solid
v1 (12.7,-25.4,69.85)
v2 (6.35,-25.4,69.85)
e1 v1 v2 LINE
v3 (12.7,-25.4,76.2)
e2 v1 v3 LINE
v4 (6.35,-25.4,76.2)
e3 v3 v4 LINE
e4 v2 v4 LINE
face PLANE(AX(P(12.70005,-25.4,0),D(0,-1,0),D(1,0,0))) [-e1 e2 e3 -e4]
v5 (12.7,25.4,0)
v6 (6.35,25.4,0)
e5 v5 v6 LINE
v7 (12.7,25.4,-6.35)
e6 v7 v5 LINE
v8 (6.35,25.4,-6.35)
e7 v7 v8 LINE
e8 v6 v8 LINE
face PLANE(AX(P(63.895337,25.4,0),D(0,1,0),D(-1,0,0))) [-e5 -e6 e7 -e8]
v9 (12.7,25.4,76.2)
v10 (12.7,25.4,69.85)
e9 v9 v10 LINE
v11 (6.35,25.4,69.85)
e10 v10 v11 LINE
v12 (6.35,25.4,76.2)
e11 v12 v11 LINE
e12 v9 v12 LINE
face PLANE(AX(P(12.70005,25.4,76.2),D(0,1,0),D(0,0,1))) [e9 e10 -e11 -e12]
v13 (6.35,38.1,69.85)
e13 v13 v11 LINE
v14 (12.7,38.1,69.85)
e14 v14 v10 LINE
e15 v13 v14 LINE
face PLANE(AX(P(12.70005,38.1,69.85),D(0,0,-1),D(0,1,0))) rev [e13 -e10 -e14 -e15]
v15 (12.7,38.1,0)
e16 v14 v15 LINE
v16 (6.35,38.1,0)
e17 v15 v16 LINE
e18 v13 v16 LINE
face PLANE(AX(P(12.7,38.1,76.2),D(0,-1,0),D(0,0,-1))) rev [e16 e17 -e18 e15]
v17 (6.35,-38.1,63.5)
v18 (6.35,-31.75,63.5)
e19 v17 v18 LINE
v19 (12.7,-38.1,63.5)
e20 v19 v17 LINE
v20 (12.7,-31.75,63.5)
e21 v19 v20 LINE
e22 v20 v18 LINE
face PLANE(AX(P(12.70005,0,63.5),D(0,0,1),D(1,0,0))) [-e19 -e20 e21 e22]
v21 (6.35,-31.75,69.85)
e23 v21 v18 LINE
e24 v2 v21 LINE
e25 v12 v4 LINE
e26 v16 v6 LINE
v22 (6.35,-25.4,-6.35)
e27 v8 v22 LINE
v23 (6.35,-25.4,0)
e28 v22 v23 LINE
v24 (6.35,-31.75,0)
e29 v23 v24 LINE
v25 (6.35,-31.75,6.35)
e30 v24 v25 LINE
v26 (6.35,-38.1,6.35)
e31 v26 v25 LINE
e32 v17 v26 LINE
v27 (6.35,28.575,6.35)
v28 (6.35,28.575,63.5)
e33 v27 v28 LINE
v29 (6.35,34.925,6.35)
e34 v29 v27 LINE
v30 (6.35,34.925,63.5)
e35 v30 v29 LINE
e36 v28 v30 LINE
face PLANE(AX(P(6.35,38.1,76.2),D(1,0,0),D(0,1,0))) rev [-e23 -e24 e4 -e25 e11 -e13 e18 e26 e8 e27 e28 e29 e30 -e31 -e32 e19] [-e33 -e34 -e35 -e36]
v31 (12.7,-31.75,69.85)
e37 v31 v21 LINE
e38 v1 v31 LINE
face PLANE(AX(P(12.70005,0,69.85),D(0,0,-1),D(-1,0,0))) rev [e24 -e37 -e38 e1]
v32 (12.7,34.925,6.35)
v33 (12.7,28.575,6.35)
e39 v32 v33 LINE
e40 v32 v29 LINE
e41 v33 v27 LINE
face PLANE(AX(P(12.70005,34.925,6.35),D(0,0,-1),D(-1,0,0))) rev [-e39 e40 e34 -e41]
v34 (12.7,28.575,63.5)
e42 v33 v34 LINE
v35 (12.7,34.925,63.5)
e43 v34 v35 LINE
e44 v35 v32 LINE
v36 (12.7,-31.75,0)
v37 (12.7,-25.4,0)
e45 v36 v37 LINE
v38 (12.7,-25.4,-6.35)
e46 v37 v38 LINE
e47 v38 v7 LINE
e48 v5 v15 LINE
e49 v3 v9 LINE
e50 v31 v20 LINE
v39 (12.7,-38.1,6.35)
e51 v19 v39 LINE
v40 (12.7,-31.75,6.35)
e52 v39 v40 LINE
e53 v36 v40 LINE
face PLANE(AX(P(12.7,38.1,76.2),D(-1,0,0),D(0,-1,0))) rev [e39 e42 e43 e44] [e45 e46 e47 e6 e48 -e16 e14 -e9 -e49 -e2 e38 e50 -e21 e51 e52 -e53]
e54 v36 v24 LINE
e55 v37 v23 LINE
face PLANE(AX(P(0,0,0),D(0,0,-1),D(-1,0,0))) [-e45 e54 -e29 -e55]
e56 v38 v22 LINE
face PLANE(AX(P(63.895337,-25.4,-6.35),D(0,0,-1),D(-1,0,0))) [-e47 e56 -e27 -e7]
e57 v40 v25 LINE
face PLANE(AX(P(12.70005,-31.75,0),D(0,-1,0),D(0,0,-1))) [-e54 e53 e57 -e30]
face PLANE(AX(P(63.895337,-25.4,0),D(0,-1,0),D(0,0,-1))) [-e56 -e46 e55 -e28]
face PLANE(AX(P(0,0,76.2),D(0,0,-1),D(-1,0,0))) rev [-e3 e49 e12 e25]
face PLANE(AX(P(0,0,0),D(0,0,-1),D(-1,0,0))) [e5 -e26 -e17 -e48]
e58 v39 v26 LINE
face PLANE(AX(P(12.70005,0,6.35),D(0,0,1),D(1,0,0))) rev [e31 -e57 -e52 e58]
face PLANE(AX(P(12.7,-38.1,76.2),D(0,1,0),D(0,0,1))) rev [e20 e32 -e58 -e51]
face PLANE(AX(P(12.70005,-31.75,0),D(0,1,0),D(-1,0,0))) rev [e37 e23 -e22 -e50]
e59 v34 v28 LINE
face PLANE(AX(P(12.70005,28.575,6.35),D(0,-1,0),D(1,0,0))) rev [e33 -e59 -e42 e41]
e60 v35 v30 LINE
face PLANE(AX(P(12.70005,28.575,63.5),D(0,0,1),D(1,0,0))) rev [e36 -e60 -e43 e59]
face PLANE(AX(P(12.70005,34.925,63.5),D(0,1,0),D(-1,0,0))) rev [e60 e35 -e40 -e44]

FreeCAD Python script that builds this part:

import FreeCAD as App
import Part
import Sketcher
from FreeCAD import Vector
Q = App.Units.Quantity

doc = App.newDocument("Part")
params = doc.addObject("Spreadsheet::Sheet", "Params")
for row, (alias, value) in enumerate([
    ("sketch1_height", "3 in"),
    ("sketch1_width", "0.25 in"),
    ("pad1_length", "3 in"),
    ("sketch2_width", "2 in"),
    ("sketch2_height", "0.25 in"),
    ("pad2_length", "0.25 in"),
    ("sketch3_width", "0.5 in"),
    ("sketch4_width", "0.25 in"),
    ("sketch4_height", "2.25 in"),
], start=1):
    params.set(f"A{row}", alias)
    params.set(f"B{row}", "=" + value)
    params.setAlias(f"B{row}", alias)

body = doc.addObject("PartDesign::Body", "Body")

# Sketch on XY plane
sketch1 = body.newObject("Sketcher::SketchObject", "Sketch")
sketch1.AttachmentSupport = (doc.getObject("XY_Plane"), [""])
sketch1.MapMode = "FlatFace"
sketch1.addGeometry([
    Part.LineSegment(Vector(6.35, 38.1, 0), Vector(6.35, -38.1, 0)),
    Part.LineSegment(Vector(6.35, -38.1, 0), Vector(12.7, -38.1, 0)),
    Part.LineSegment(Vector(12.7, -38.1, 0), Vector(12.7, 38.1, 0)),
    Part.LineSegment(Vector(12.7, 38.1, 0), Vector(6.35, 38.1, 0)),
], False)
sketch1.addConstraint([
    Sketcher.Constraint("Coincident", 0, 2, 1, 1),
    Sketcher.Constraint("Coincident", 1, 2, 2, 1),
    Sketcher.Constraint("Coincident", 2, 2, 3, 1),
    Sketcher.Constraint("Coincident", 3, 2, 0, 1),
    Sketcher.Constraint("Vertical", 0),
    Sketcher.Constraint("Horizontal", 1),
    Sketcher.Constraint("Vertical", 2),
    Sketcher.Constraint("Horizontal", 3),
    Sketcher.Constraint("DistanceY", 0, 2, 0, 1, Q("3 in")),
    Sketcher.Constraint("DistanceX", 1, 1, 1, 2, Q("0.25 in")),
    Sketcher.Constraint("DistanceY", 0, 2, -1, 1, Q("1.5 in")),
    Sketcher.Constraint("DistanceX", -1, 1, 1, 2, Q("0.5 in")),
])
sketch1.setExpression("Constraints[8]", "Params.sketch1_height")
sketch1.setExpression("Constraints[9]", "Params.sketch1_width")
pad1 = body.newObject("PartDesign::Pad", "Pad")
pad1.Profile = sketch1
pad1.setExpression("Length", "Params.pad1_length")

# Sketch on YZ plane
sketch2 = body.newObject("Sketcher::SketchObject", "Sketch001")
sketch2.AttachmentSupport = (doc.getObject("YZ_Plane"), [""])
sketch2.MapMode = "FlatFace"
sketch2.AttachmentOffset = App.Placement(Vector(0, 0, 0.25 * 25.4), App.Rotation())
sketch2.addGeometry([
    Part.LineSegment(Vector(25.4, -6.35, 0), Vector(-25.4, -6.35, 0)),
    Part.LineSegment(Vector(-25.4, -6.35, 0), Vector(-25.4, 0, 0)),
    Part.LineSegment(Vector(-25.4, 0, 0), Vector(25.4, 0, 0)),
    Part.LineSegment(Vector(25.4, 0, 0), Vector(25.4, -6.35, 0)),
], False)
sketch2.addConstraint([
    Sketcher.Constraint("Coincident", 0, 2, 1, 1),
    Sketcher.Constraint("Coincident", 1, 2, 2, 1),
    Sketcher.Constraint("Coincident", 2, 2, 3, 1),
    Sketcher.Constraint("Coincident", 3, 2, 0, 1),
    Sketcher.Constraint("Horizontal", 0),
    Sketcher.Constraint("Vertical", 1),
    Sketcher.Constraint("Horizontal", 2),
    Sketcher.Constraint("Vertical", 3),
    Sketcher.Constraint("Symmetric", 1, 2, 2, 2, -1, 1),
    Sketcher.Constraint("DistanceX", 0, 2, 0, 1, Q("2 in")),
    Sketcher.Constraint("DistanceY", 1, 1, 1, 2, Q("0.25 in")),
])
sketch2.setExpression("Constraints[9]", "Params.sketch2_width")
sketch2.setExpression("Constraints[10]", "Params.sketch2_height")
pad2 = body.newObject("PartDesign::Pad", "Pad001")
pad2.Profile = sketch2
pad2.setExpression("Length", "Params.pad2_length")

# Sketch on YZ plane
sketch3 = body.newObject("Sketcher::SketchObject", "Sketch002")
sketch3.AttachmentSupport = (doc.getObject("YZ_Plane"), [""])
sketch3.MapMode = "FlatFace"
sketch3.AttachmentOffset = App.Placement(Vector(0, 0, 0.25 * 25.4), App.Rotation())
sketch3.addGeometry([
    Part.LineSegment(Vector(-38.1, 76.2, 0), Vector(-25.4, 76.2, 0)),  # 0
    Part.LineSegment(Vector(-25.4, 76.2, 0), Vector(-25.4, 69.85, 0)),  # 1
    Part.LineSegment(Vector(-25.4, 69.85, 0), Vector(-31.75, 69.85, 0)),  # 2
    Part.LineSegment(Vector(-31.75, 69.85, 0), Vector(-31.75, 63.5, 0)),  # 3
    Part.LineSegment(Vector(-31.75, 63.5, 0), Vector(-38.1, 63.5, 0)),  # 4
    Part.LineSegment(Vector(-38.1, 63.5, 0), Vector(-38.1, 76.2, 0)),  # 5
    Part.LineSegment(Vector(-31.75, 0, 0), Vector(-38.1, 0, 0)),  # 6
    Part.LineSegment(Vector(-38.1, 0, 0), Vector(-38.1, 6.35, 0)),  # 7
    Part.LineSegment(Vector(-38.1, 6.35, 0), Vector(-31.75, 6.35, 0)),  # 8
    Part.LineSegment(Vector(-31.75, 6.35, 0), Vector(-31.75, 0, 0)),  # 9
    Part.LineSegment(Vector(38.1, 69.85, 0), Vector(25.4, 69.85, 0)),  # 10
    Part.LineSegment(Vector(25.4, 69.85, 0), Vector(25.4, 76.2, 0)),  # 11
    Part.LineSegment(Vector(25.4, 76.2, 0), Vector(38.1, 76.2, 0)),  # 12
    Part.LineSegment(Vector(38.1, 76.2, 0), Vector(38.1, 69.85, 0)),  # 13
], False)
sketch3.addConstraint([
    Sketcher.Constraint("Coincident", 0, 2, 1, 1),
    Sketcher.Constraint("Coincident", 1, 2, 2, 1),
    Sketcher.Constraint("Coincident", 2, 2, 3, 1),
    Sketcher.Constraint("Coincident", 3, 2, 4, 1),
    Sketcher.Constraint("Coincident", 4, 2, 5, 1),
    Sketcher.Constraint("Coincident", 5, 2, 0, 1),
    Sketcher.Constraint("Coincident", 6, 2, 7, 1),
    Sketcher.Constraint("Coincident", 7, 2, 8, 1),
    Sketcher.Constraint("Coincident", 8, 2, 9, 1),
    Sketcher.Constraint("Coincident", 9, 2, 6, 1),
    Sketcher.Constraint("Coincident", 10, 2, 11, 1),
    Sketcher.Constraint("Coincident", 11, 2, 12, 1),
    Sketcher.Constraint("Coincident", 12, 2, 13, 1),
    Sketcher.Constraint("Coincident", 13, 2, 10, 1),
    Sketcher.Constraint("Horizontal", 0),
    Sketcher.Constraint("Vertical", 1),
    Sketcher.Constraint("Horizontal", 2),
    Sketcher.Constraint("Vertical", 3),
    Sketcher.Constraint("Horizontal", 4),
    Sketcher.Constraint("Vertical", 5),
    Sketcher.Constraint("Horizontal", 6),
    Sketcher.Constraint("Vertical", 7),
    Sketcher.Constraint("Horizontal", 8),
    Sketcher.Constraint("Vertical", 9),
    Sketcher.Constraint("Horizontal", 10),
    Sketcher.Constraint("Vertical", 11),
    Sketcher.Constraint("Horizontal", 12),
    Sketcher.Constraint("Vertical", 13),
    Sketcher.Constraint("Symmetric", 1, 2, 10, 2, -2),
    Sketcher.Constraint("Symmetric", 5, 2, 12, 2, -2),
    Sketcher.Constraint("PointOnObject", 6, 2, -1),
    Sketcher.Constraint("Vertical", 5, 2, 6, 2),
    Sketcher.Constraint("Vertical", 3, 2, 8, 2),
    Sketcher.Constraint("Equal", 2, 4),
    Sketcher.Constraint("Equal", 8, 1),
    Sketcher.Constraint("Equal", 1, 3),
    Sketcher.Constraint("Equal", 3, 7),
    Sketcher.Constraint("DistanceX", 0, 1, 0, 2, Q("0.5 in")),
    Sketcher.Constraint("DistanceX", 0, 2, -1, 1, Q("1 in")),
    Sketcher.Constraint("DistanceY", -1, 1, 0, 2, Q("3 in")),
])
sketch3.setExpression("Constraints[37]", "Params.sketch3_width")
pocket1 = body.newObject("PartDesign::Pocket", "Pocket")
pocket1.Profile = sketch3
pocket1.Type = "ThroughAll"
pocket1.Reversed = True

# Sketch on YZ plane
sketch4 = body.newObject("Sketcher::SketchObject", "Sketch003")
sketch4.AttachmentSupport = (doc.getObject("YZ_Plane"), [""])
sketch4.MapMode = "FlatFace"
sketch4.AttachmentOffset = App.Placement(Vector(0, 0, 0.25 * 25.4), App.Rotation())
sketch4.addGeometry([
    Part.LineSegment(Vector(34.925, 6.35, 0), Vector(28.575, 6.35, 0)),
    Part.LineSegment(Vector(28.575, 6.35, 0), Vector(28.575, 63.5, 0)),
    Part.LineSegment(Vector(28.575, 63.5, 0), Vector(34.925, 63.5, 0)),
    Part.LineSegment(Vector(34.925, 63.5, 0), Vector(34.925, 6.35, 0)),
], False)
sketch4.addConstraint([
    Sketcher.Constraint("Coincident", 0, 2, 1, 1),
    Sketcher.Constraint("Coincident", 1, 2, 2, 1),
    Sketcher.Constraint("Coincident", 2, 2, 3, 1),
    Sketcher.Constraint("Coincident", 3, 2, 0, 1),
    Sketcher.Constraint("Horizontal", 0),
    Sketcher.Constraint("Vertical", 1),
    Sketcher.Constraint("Horizontal", 2),
    Sketcher.Constraint("Vertical", 3),
    Sketcher.Constraint("DistanceX", 0, 2, 0, 1, Q("0.25 in")),
    Sketcher.Constraint("DistanceY", 1, 1, 1, 2, Q("2.25 in")),
    Sketcher.Constraint("DistanceY", -1, 1, 1, 2, Q("2.5 in")),
    Sketcher.Constraint("DistanceX", -1, 1, 0, 2, Q("1.125 in")),
])
sketch4.setExpression("Constraints[8]", "Params.sketch4_width")
sketch4.setExpression("Constraints[9]", "Params.sketch4_height")
pocket2 = body.newObject("PartDesign::Pocket", "Pocket001")
pocket2.Profile = sketch4
pocket2.Type = "ThroughAll"
pocket2.Reversed = True

doc.recompute()
